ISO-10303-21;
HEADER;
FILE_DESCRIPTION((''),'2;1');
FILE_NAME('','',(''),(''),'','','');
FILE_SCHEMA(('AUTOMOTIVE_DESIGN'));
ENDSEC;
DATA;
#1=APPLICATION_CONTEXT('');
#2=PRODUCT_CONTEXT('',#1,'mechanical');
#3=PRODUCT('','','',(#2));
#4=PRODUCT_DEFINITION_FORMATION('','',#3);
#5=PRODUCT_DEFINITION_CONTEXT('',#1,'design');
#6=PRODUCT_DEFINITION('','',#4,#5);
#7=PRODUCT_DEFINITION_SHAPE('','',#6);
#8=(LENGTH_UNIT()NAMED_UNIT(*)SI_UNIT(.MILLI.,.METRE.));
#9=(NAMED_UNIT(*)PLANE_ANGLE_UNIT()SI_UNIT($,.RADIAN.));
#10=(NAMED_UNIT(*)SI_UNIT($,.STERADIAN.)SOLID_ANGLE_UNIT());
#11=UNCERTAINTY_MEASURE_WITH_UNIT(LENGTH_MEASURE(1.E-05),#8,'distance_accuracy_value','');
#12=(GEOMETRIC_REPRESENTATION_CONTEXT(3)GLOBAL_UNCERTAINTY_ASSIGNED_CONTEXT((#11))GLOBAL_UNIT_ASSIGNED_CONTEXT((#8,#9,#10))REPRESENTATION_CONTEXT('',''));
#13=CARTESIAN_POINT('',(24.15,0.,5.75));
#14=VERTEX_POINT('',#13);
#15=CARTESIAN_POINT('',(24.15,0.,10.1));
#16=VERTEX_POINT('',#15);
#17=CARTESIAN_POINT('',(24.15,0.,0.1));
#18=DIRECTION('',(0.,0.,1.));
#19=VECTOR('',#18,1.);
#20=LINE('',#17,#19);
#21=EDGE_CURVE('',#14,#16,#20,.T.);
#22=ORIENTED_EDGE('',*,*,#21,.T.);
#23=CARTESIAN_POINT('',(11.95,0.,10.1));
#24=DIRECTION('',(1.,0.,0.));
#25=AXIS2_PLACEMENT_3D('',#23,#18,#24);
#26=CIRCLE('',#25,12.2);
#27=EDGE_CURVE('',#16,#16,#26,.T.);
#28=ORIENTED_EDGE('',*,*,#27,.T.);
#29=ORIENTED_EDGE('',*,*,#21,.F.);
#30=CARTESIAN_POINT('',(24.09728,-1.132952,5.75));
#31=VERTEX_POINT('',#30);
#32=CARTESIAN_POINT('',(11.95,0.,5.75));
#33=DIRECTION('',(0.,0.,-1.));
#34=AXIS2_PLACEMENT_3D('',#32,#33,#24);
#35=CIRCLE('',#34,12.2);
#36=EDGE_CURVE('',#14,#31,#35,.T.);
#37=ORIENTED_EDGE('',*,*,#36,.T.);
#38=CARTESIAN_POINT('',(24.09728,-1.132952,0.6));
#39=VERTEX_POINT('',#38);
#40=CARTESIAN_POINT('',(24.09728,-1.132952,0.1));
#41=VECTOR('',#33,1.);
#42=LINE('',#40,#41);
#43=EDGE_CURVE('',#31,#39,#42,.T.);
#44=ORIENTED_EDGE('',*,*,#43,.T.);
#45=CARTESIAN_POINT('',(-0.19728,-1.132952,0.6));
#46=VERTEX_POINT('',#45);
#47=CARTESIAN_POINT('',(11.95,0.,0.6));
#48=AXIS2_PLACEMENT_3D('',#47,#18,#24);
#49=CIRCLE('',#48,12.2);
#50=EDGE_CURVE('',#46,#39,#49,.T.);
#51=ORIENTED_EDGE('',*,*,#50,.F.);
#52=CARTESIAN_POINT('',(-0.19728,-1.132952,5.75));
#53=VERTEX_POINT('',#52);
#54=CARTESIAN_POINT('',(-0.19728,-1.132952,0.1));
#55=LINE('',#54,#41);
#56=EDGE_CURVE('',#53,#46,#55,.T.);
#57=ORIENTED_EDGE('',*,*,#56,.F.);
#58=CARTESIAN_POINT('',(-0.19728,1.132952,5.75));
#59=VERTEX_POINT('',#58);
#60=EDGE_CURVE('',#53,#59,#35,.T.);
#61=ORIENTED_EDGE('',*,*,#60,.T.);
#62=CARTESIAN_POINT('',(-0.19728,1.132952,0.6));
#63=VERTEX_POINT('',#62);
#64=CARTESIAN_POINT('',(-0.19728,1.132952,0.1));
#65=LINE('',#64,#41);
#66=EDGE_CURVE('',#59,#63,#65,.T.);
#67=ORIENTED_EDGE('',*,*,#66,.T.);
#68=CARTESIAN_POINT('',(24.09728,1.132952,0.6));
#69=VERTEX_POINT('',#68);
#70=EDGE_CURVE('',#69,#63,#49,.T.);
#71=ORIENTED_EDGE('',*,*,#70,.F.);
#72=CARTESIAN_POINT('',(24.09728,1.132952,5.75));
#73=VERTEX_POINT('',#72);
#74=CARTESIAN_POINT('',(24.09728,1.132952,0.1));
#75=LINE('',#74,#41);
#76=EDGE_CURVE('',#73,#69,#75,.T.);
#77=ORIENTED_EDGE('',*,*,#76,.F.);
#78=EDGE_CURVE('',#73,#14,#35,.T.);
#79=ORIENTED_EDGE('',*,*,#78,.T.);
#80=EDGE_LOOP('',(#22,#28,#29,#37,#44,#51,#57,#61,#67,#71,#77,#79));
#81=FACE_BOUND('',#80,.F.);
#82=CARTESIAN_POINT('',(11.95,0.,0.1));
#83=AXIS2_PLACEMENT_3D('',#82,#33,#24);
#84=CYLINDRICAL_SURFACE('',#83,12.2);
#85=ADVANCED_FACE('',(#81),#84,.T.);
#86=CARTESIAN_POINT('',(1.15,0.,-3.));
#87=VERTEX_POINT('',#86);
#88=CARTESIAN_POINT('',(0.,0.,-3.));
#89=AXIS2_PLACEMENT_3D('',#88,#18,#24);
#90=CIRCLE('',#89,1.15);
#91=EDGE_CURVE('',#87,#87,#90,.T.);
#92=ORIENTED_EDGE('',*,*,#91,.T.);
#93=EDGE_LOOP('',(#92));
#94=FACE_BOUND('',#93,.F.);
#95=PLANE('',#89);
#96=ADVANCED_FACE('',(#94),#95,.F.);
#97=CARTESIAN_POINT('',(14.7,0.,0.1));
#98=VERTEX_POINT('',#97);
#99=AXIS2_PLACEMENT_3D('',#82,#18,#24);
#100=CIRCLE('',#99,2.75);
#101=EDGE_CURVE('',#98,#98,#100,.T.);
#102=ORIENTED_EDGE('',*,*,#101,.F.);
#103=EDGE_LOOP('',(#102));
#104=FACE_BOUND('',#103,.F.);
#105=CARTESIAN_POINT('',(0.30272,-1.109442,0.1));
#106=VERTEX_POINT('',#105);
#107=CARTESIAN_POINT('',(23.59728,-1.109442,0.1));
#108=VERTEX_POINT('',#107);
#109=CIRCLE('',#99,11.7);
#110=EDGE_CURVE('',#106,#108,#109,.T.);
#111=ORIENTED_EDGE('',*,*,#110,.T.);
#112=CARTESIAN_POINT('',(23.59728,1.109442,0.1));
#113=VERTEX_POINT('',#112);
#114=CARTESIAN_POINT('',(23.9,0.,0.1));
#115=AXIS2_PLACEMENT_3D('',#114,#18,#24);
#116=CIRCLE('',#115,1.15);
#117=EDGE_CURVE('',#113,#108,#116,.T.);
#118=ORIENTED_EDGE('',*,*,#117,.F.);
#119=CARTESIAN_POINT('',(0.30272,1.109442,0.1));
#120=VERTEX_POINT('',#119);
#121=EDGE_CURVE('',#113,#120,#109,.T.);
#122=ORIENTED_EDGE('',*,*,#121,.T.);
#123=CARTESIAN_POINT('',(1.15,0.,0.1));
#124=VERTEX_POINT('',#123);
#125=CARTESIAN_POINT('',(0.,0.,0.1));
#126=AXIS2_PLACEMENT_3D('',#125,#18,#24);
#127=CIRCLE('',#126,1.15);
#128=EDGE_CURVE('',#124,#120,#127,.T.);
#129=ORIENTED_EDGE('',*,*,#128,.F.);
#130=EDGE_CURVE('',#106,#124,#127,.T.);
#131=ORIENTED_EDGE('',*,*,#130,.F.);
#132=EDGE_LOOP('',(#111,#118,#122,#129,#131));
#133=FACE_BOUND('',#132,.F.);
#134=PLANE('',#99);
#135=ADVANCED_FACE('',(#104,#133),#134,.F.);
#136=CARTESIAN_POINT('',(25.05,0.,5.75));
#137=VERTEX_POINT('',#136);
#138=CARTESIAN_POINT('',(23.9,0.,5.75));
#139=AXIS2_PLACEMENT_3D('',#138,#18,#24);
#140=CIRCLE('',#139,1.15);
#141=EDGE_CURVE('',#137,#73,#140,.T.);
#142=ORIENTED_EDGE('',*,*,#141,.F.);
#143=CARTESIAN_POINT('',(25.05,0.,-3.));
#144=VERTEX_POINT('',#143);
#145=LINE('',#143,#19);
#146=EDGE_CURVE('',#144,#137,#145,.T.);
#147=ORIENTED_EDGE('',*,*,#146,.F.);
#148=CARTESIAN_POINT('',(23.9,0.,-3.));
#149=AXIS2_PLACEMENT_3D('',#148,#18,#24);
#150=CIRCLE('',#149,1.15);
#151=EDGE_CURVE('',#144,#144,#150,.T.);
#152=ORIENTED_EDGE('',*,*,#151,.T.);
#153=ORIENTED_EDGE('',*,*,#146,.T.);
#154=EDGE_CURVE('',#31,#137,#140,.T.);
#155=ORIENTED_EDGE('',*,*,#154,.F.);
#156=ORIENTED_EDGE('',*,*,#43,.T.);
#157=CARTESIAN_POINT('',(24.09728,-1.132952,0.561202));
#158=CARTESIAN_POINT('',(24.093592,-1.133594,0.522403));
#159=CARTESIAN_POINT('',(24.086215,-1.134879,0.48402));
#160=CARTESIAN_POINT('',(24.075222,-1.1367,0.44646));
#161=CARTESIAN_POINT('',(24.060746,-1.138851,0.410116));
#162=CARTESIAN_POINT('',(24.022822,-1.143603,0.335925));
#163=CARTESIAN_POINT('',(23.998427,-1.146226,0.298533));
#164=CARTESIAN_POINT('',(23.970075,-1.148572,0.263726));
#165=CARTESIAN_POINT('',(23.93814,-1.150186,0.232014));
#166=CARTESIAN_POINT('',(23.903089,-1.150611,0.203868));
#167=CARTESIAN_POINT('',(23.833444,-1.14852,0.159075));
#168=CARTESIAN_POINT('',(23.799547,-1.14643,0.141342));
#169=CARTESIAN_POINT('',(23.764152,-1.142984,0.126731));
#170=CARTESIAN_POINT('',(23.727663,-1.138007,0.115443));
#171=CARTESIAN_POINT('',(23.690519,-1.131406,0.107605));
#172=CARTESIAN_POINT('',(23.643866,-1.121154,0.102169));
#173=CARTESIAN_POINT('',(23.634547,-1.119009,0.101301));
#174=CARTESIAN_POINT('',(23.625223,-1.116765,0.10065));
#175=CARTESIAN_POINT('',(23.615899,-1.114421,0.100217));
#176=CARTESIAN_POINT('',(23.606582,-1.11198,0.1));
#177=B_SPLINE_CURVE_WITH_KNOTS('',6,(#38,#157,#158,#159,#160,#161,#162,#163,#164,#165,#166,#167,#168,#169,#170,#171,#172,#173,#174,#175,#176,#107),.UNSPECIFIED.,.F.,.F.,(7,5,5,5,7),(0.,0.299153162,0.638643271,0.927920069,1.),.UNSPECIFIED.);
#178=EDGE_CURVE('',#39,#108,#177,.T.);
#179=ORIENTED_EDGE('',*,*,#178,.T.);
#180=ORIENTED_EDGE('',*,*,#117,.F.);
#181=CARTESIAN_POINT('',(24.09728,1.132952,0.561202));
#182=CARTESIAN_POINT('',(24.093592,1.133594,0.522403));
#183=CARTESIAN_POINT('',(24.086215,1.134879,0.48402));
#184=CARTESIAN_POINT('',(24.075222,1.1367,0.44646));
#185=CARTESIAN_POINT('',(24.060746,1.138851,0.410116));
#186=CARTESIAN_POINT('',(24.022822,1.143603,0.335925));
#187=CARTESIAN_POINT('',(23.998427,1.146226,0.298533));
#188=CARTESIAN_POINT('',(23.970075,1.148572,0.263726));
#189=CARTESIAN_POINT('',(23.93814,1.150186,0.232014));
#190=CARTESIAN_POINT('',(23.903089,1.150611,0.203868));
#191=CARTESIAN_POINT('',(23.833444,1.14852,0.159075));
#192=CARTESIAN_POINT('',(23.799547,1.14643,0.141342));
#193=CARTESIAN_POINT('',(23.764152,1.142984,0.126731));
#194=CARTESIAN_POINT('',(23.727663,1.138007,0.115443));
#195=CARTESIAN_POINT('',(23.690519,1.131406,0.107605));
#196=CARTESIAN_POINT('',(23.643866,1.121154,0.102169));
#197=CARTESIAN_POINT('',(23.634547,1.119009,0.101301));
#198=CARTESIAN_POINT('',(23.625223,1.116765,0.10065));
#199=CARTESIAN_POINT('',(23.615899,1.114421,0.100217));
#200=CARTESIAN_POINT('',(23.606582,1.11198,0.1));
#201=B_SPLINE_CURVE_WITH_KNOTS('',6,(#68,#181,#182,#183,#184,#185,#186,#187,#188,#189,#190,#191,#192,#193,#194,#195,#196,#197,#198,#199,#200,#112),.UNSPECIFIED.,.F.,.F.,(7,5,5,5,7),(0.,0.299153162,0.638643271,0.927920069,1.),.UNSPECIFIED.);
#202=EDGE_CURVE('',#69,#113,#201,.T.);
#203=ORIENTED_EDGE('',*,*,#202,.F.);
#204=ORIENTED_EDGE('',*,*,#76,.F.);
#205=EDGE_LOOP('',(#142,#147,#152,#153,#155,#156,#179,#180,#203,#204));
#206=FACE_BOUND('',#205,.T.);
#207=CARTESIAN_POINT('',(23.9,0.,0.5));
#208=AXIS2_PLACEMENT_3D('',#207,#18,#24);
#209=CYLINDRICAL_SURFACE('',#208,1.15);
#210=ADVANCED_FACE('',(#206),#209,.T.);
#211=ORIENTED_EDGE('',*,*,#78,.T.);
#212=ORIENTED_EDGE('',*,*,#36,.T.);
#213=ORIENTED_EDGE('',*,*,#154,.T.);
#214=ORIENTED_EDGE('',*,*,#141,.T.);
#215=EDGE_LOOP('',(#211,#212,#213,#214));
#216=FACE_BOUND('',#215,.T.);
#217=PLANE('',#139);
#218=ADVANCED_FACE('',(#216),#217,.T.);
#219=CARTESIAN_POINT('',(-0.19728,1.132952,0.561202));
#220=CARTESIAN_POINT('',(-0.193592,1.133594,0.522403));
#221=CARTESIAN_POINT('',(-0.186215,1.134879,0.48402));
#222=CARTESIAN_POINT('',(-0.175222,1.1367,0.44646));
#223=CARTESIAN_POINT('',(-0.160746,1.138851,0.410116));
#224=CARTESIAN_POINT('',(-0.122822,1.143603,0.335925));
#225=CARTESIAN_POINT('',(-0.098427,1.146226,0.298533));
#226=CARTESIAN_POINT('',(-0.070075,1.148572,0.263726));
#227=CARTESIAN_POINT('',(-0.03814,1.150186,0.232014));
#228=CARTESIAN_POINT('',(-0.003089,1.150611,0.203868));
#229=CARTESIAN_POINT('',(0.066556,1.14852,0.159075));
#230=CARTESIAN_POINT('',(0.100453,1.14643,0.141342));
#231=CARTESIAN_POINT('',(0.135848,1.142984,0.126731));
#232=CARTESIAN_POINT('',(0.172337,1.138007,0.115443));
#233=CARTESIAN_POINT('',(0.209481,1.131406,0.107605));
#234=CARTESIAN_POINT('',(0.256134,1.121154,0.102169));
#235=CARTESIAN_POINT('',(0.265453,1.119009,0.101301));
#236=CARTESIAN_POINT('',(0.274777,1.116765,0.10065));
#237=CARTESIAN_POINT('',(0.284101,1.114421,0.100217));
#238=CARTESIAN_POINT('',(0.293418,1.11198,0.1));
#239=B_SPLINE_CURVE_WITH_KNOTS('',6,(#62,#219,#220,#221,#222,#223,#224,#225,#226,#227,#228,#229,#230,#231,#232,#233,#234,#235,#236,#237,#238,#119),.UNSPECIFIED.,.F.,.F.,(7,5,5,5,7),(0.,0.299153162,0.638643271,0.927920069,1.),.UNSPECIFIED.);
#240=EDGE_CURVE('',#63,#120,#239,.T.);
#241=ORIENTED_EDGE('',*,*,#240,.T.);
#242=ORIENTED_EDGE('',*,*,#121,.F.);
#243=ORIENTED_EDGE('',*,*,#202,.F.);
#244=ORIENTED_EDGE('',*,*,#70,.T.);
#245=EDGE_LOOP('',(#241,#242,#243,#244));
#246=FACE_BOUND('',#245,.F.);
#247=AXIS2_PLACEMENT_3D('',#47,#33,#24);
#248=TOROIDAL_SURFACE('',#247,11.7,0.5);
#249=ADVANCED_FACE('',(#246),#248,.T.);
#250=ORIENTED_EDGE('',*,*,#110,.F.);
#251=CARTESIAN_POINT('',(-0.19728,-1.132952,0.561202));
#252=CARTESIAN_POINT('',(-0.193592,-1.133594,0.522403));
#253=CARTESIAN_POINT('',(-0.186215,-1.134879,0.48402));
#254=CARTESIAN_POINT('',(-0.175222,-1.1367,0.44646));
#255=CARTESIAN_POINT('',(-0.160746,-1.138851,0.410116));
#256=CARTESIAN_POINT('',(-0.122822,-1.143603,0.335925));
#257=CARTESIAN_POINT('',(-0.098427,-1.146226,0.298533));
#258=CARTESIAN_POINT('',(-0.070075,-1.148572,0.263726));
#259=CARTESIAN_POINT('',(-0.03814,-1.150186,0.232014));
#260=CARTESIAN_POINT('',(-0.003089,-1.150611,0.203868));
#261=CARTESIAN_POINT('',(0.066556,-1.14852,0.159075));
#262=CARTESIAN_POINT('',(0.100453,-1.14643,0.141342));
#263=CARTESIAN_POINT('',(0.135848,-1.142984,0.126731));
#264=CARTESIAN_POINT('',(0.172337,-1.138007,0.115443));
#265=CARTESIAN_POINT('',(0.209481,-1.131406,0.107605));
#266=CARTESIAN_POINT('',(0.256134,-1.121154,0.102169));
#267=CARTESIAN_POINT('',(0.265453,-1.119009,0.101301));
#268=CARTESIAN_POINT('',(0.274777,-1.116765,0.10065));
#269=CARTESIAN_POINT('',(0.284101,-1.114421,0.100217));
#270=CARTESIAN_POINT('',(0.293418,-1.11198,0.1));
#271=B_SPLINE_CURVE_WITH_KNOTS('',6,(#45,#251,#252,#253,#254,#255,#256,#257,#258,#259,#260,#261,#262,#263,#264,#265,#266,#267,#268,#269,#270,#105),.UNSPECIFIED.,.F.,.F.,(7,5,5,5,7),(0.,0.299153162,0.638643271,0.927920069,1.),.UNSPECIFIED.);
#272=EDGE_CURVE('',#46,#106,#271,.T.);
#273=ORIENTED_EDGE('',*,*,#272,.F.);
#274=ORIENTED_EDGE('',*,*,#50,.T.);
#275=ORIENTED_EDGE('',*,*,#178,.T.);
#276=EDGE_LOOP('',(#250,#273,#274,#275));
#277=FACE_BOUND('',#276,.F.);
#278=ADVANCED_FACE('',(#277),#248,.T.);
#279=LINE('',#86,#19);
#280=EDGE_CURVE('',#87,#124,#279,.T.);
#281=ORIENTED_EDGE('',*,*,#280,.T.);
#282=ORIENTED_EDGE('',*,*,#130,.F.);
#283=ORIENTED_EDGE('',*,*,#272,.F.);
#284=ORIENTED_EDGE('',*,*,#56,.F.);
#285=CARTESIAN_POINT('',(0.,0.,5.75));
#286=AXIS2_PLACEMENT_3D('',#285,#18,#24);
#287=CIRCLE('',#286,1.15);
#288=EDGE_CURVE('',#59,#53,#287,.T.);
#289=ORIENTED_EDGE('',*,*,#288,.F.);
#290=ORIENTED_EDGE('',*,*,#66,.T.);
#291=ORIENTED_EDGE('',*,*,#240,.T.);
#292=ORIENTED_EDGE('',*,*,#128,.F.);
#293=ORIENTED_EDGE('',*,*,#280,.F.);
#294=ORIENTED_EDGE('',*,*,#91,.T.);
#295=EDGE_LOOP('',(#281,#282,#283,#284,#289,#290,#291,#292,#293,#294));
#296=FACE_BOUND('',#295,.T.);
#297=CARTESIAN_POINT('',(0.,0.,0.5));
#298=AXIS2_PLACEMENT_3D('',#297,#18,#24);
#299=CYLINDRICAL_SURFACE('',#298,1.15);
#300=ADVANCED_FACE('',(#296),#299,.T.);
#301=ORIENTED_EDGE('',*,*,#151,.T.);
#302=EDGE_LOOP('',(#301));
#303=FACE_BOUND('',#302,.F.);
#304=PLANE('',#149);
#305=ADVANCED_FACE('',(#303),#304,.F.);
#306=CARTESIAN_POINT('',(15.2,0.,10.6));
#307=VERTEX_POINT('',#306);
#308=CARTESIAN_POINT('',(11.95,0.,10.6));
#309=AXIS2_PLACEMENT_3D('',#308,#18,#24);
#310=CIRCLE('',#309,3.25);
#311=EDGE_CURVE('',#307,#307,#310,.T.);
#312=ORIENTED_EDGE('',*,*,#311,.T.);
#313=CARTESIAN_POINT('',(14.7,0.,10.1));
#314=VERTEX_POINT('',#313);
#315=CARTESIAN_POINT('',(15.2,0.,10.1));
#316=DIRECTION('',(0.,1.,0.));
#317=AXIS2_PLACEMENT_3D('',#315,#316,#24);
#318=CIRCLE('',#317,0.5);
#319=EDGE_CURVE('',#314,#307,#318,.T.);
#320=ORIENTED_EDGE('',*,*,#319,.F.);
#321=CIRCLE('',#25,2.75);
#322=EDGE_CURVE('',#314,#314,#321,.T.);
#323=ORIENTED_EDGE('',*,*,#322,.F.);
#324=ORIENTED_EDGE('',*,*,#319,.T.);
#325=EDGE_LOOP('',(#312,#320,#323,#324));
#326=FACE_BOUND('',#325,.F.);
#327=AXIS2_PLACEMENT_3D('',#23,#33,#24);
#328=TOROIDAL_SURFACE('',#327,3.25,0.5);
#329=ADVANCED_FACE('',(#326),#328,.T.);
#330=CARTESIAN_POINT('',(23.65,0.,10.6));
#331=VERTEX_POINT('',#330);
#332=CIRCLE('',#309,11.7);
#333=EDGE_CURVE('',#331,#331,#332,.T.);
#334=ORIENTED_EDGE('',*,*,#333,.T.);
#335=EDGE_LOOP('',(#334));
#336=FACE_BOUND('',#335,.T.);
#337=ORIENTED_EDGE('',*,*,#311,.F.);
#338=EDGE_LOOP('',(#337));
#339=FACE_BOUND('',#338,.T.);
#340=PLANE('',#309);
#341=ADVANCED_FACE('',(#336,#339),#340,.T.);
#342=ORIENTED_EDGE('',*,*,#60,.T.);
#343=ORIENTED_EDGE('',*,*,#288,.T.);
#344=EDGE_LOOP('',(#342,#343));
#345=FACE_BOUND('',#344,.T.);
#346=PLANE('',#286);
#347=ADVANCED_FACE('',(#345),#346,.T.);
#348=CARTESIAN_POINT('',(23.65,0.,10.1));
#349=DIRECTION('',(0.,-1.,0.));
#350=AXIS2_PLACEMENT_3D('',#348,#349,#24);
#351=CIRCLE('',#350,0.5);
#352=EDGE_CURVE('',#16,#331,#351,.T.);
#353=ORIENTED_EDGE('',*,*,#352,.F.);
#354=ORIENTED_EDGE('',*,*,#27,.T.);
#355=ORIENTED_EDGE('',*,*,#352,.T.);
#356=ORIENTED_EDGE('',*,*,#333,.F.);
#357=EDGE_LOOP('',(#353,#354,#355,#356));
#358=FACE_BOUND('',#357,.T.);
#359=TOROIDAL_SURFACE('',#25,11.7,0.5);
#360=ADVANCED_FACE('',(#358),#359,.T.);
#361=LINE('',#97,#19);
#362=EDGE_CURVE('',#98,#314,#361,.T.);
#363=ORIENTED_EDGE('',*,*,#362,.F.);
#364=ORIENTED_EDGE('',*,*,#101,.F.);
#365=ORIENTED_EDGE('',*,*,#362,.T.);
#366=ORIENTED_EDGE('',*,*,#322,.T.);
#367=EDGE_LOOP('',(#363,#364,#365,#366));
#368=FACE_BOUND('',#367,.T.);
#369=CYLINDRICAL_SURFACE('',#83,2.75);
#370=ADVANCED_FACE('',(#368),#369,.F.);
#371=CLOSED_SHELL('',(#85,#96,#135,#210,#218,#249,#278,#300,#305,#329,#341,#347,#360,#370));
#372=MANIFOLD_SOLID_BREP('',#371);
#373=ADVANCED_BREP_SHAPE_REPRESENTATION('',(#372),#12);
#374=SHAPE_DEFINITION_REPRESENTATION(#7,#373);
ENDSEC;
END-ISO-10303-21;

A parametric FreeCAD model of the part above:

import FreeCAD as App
import Part
import Sketcher

V = App.Vector
Q = App.Units.Quantity


def edges_at(feature, points):
    """Names of the edges that pass closest to the given points."""
    edges = feature.Shape.Edges
    near = lambda p: min(range(len(edges)), key=lambda i: edges[i].distToShape(Part.Vertex(*p))[0])
    return sorted({f"Edge{near(p) + 1}" for p in points})

doc = App.newDocument("Part")
body = doc.addObject("PartDesign::Body", "Body")
body.AllowCompound = True

# Sketch on XY plane
sketch1 = doc.addObject("Sketcher::SketchObject", "Sketch")
body.addObject(sketch1)
sketch1.AttachmentSupport = (doc.XY_Plane, [""])
sketch1.MapMode = "FlatFace"
sketch1.AttachmentOffset = App.Placement(V(0, 0, 0.5), App.Rotation())
sketch1.addGeometry(Part.Circle(V(0, 0, 0), V(0, 0, 1), 1.1), False)
sketch1.addGeometry(Part.Circle(V(23.9, 0, 0), V(0, 0, 1), 1.1), False)
sketch1.addConstraint(Sketcher.Constraint("Coincident", 0, 3, -1, 1))
sketch1.addConstraint(Sketcher.Constraint("Equal", 0, 1))
sketch1.addConstraint(Sketcher.Constraint("PointOnObject", 1, 3, -1))
sketch1.addConstraint(Sketcher.Constraint("Diameter", 0, Q("2.3 mm")))
sketch1.addConstraint(Sketcher.Constraint("DistanceX", -1, 1, 1, 3, Q("23.9 mm")))
pad1 = doc.addObject("PartDesign::Pad", "Pad")
body.addObject(pad1)
pad1.Profile = sketch1
pad1.Type = "TwoLengths"
pad1.Length = 5.25
pad1.Length2 = 3.5
body2 = doc.addObject("PartDesign::Body", "Body001")

# Sketch on XY plane
sketch2 = doc.addObject("Sketcher::SketchObject", "Sketch001")
body2.addObject(sketch2)
sketch2.AttachmentSupport = (doc.getObject("XY_Plane001"), [""])
sketch2.MapMode = "FlatFace"
sketch2.AttachmentOffset = App.Placement(V(0, 0, 0.1), App.Rotation())
sketch2.addGeometry(Part.Circle(V(11.9, 0, 0), V(0, 0, 1), 12.2), False)
sketch2.addGeometry(Part.Circle(V(11.9, 0, 0), V(0, 0, 1), 2.8), False)
sketch2.addConstraint(Sketcher.Constraint("Coincident", 1, 3, 0, 3))
sketch2.addConstraint(Sketcher.Constraint("PointOnObject", 0, 3, -1))
sketch2.addConstraint(Sketcher.Constraint("Diameter", 0, Q("24.4 mm")))
sketch2.addConstraint(Sketcher.Constraint("Diameter", 1, Q("5.5 mm")))
sketch2.addConstraint(Sketcher.Constraint("DistanceX", -1, 1, 0, 3, Q("11.95 mm")))
pad2 = doc.addObject("PartDesign::Pad", "Pad001")
body2.addObject(pad2)
pad2.Profile = sketch2
pad2.Length = 10.5
doc.recompute()

fillet = doc.addObject("PartDesign::Fillet", "Fillet")
body2.addObject(fillet)
fillet.Base = (pad2, edges_at(pad2, [(9.2, 0, 10.6), (-0.25, 0, 10.6), (-0.25, 0, 0.1)]))
fillet.Radius = 0.5
doc.recompute()

boolean = doc.addObject("PartDesign::Boolean", "Boolean")
body2.addObject(boolean)
boolean.Type = "Fuse"
boolean.addObjects([body])

doc.recompute()
